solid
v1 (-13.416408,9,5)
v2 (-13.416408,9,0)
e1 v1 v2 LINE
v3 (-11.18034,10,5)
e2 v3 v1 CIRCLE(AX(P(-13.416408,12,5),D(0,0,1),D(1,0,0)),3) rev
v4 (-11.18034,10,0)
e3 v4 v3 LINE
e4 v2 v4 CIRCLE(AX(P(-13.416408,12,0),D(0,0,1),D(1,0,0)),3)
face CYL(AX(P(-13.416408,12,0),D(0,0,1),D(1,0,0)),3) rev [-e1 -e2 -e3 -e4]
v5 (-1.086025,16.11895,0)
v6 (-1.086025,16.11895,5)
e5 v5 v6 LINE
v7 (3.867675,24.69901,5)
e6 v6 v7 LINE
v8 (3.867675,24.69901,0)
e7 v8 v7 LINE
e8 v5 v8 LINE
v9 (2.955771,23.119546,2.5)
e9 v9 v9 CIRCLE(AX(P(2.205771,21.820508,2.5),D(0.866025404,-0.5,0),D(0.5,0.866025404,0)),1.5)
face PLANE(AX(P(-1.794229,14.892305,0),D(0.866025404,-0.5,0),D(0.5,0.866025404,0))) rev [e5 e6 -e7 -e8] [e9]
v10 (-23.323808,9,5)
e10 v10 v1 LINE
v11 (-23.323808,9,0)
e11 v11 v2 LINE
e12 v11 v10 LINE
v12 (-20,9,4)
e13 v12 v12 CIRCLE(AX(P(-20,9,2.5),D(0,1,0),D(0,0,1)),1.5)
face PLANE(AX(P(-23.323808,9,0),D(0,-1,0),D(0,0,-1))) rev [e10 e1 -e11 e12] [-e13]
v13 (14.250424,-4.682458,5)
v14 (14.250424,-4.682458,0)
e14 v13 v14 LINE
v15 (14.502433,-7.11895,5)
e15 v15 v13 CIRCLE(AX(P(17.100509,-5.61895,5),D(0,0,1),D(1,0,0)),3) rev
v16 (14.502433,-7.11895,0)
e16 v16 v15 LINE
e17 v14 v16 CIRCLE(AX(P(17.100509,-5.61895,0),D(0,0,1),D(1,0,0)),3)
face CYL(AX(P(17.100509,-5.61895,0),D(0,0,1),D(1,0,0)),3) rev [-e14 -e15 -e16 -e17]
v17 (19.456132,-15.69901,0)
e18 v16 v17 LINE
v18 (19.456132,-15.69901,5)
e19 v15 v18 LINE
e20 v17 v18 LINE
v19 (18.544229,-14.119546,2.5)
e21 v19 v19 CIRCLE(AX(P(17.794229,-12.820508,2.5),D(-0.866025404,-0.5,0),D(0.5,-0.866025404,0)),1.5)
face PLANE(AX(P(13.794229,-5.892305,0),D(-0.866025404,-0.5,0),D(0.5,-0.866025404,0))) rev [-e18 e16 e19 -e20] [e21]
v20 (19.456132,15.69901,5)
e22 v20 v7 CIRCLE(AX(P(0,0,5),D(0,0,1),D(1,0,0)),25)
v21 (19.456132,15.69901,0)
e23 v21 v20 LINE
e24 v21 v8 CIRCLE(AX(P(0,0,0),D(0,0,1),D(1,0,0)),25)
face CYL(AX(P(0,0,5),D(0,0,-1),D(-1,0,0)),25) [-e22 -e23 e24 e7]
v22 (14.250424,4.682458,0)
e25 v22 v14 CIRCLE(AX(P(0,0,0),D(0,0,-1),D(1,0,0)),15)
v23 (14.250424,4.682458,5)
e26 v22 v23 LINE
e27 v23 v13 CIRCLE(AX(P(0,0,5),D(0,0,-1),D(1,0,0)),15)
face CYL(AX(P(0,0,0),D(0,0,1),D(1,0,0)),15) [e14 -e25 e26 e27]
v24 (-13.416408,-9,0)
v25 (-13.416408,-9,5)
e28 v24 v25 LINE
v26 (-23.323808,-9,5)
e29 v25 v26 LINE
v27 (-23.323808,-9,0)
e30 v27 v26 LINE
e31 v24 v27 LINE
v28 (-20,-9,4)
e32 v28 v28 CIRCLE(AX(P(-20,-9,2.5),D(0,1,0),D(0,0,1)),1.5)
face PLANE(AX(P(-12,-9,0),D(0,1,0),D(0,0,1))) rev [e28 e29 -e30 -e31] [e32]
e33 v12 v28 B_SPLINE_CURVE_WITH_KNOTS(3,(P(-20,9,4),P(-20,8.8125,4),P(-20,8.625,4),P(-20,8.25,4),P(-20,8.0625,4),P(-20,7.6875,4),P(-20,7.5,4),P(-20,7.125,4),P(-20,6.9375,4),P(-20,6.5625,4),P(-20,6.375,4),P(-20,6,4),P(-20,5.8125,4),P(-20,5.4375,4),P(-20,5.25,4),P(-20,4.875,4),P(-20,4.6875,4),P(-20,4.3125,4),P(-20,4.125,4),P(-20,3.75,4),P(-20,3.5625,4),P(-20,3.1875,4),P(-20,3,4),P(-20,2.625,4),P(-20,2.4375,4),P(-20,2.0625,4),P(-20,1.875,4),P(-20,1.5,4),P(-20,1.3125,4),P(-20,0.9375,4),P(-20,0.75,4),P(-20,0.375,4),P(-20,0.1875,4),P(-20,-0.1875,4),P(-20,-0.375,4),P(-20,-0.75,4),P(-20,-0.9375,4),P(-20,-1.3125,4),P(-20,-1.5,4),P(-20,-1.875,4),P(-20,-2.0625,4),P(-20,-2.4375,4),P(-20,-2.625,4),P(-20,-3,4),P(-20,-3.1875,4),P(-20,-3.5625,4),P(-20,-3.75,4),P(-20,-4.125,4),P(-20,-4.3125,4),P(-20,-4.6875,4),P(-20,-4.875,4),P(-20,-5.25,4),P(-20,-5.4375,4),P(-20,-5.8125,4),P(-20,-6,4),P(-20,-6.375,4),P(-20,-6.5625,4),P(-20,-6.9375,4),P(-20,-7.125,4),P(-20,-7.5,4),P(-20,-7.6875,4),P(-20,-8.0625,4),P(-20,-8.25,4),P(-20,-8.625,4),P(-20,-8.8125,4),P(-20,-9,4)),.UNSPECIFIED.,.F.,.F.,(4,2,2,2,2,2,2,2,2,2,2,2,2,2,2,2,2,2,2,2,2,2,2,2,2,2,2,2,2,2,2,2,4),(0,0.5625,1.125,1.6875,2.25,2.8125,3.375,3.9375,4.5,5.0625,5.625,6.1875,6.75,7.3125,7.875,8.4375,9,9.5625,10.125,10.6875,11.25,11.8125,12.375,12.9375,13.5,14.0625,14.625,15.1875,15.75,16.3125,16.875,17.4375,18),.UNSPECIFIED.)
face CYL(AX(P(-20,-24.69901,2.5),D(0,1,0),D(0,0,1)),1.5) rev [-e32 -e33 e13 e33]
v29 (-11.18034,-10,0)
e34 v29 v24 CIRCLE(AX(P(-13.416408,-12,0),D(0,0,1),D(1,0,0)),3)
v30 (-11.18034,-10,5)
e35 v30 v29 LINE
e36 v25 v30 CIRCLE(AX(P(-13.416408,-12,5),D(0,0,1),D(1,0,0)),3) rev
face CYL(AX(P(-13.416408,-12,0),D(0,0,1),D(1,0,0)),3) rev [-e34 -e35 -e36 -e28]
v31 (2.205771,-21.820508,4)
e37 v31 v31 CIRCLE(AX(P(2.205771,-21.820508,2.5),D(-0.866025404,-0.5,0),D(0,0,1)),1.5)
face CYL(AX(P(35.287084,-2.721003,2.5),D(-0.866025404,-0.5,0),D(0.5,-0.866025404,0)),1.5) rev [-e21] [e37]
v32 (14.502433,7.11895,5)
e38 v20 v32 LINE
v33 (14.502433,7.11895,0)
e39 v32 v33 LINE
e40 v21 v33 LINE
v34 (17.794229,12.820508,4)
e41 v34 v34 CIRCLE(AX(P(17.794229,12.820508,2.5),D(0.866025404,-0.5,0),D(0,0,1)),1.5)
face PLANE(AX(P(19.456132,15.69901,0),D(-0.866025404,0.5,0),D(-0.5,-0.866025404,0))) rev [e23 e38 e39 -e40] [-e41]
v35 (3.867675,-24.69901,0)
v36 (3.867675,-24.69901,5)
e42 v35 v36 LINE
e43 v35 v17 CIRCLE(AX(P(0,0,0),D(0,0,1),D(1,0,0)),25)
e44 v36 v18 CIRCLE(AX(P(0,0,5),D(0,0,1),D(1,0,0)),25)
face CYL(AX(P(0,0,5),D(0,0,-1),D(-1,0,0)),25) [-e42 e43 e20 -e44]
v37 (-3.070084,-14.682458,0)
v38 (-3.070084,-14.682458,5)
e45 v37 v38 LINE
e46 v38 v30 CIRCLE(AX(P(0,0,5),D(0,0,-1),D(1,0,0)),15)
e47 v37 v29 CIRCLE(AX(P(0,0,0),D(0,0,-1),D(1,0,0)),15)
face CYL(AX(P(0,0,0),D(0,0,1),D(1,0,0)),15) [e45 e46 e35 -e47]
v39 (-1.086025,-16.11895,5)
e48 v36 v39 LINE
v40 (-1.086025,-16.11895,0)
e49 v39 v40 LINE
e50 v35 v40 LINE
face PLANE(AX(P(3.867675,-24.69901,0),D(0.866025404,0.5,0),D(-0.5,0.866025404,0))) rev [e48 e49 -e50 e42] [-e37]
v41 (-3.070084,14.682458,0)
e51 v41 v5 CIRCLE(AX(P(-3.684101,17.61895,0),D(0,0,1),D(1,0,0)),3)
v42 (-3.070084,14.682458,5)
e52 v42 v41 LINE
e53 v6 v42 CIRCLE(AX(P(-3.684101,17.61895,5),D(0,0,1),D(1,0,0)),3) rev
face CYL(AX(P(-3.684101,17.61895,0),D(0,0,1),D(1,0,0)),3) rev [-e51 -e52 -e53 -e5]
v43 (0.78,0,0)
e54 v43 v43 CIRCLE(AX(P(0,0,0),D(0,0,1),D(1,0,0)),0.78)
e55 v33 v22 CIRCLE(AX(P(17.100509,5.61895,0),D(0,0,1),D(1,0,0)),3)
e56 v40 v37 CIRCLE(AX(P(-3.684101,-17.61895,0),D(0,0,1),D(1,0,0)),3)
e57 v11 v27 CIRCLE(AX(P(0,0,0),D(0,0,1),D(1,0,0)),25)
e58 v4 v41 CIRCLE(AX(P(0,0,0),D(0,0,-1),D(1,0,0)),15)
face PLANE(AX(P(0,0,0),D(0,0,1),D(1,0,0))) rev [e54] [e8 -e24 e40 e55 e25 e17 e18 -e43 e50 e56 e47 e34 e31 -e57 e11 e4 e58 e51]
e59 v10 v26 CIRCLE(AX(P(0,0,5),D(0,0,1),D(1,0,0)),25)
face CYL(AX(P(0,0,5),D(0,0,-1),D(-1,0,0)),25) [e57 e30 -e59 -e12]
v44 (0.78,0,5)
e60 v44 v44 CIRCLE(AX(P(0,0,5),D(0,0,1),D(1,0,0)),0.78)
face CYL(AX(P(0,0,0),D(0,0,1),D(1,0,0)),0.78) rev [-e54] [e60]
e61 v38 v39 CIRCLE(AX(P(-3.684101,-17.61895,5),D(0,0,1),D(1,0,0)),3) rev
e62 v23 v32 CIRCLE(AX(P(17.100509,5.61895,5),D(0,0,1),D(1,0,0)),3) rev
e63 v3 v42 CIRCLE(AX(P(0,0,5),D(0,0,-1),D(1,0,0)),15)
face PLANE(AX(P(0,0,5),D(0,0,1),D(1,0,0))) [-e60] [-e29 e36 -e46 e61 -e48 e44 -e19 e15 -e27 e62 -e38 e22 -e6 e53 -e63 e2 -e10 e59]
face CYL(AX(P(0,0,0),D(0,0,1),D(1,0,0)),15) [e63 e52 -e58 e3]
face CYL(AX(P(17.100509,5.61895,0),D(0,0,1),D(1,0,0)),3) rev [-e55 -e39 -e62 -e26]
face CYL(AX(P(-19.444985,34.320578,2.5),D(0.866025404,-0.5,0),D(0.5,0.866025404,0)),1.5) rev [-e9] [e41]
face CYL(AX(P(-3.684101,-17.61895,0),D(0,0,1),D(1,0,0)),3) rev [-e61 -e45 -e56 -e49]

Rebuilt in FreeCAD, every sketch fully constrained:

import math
import FreeCAD as App
import Part
import Sketcher
Q = App.Units.Quantity


def edges_at(feature, points):
    """Names of the edges that pass closest to the given points."""
    edges = feature.Shape.Edges
    near = lambda p: min(range(len(edges)), key=lambda i: edges[i].distToShape(Part.Vertex(*p))[0])
    return sorted({f"Edge{near(p) + 1}" for p in points})

doc = App.newDocument("Part")
body = doc.addObject("PartDesign::Body", "Body")

# Sketch on XY plane
sketch1 = doc.addObject("Sketcher::SketchObject", "Sketch")
body.addObject(sketch1)
sketch1.AttachmentSupport = (doc.XY_Plane, [""])
sketch1.MapMode = "FlatFace"
sketch1.addGeometry(Part.Circle(App.Vector(0, 0, 0), App.Vector(0, 0, 1), 25), False)
sketch1.addConstraint([
    Sketcher.Constraint("Coincident", 0, 3, -1, 1),
    Sketcher.Constraint("Diameter", 0, 50.0),
])
pad1 = doc.addObject("PartDesign::Pad", "Pad")
body.addObject(pad1)
pad1.Profile = sketch1
pad1.Length = 5

# Sketch on XY plane
sketch2 = doc.addObject("Sketcher::SketchObject", "Sketch001")
body.addObject(sketch2)
sketch2.AttachmentSupport = (doc.XY_Plane, [""])
sketch2.MapMode = "FlatFace"
sketch2.AttachmentOffset = App.Placement(App.Vector(0, 0, 5), App.Rotation())
sketch2.addGeometry([
    Part.LineSegment(App.Vector(19, 16, 0), App.Vector(14, 6, 0)),  # 0
    Part.ArcOfCircle(Part.Circle(App.Vector(0, 0, 0), App.Vector(0, 0, 1), 15), math.radians(-23), math.radians(23)),  # 1
    Part.LineSegment(App.Vector(14, -6, 0), App.Vector(19, -16, 0)),  # 2
    Part.ArcOfCircle(Part.Circle(App.Vector(0, 0, 0), App.Vector(0, 0, 1), 25), math.radians(-39), math.radians(39)),  # 3
    Part.LineSegment(App.Vector(-23, 9, 0), App.Vector(-12, 9, 0)),  # 4
    Part.ArcOfCircle(Part.Circle(App.Vector(0, 0, 0), App.Vector(0, 0, 1), 15), math.radians(97), math.radians(143)),  # 5
    Part.LineSegment(App.Vector(-2, 15, 0), App.Vector(4, 25, 0)),  # 6
    Part.ArcOfCircle(Part.Circle(App.Vector(0, 0, 0), App.Vector(0, 0, 1), 25), math.radians(81), math.radians(159)),  # 7
    Part.LineSegment(App.Vector(4, -25, 0), App.Vector(-2, -15, 0)),  # 8
    Part.ArcOfCircle(Part.Circle(App.Vector(0, 0, 0), App.Vector(0, 0, 1), 15), math.radians(-143), math.radians(-97)),  # 9
    Part.LineSegment(App.Vector(-12, -9, 0), App.Vector(-23, -9, 0)),  # 10
    Part.ArcOfCircle(Part.Circle(App.Vector(0, 0, 0), App.Vector(0, 0, 1), 25), math.radians(-159), math.radians(-81)),  # 11
], False)
sketch2.addConstraint([
    Sketcher.Constraint("Coincident", 0, 2, 1, 2),
    Sketcher.Constraint("Coincident", 1, 1, 2, 1),
    Sketcher.Constraint("Coincident", 2, 2, 3, 1),
    Sketcher.Constraint("Coincident", 3, 2, 0, 1),
    Sketcher.Constraint("Coincident", 4, 2, 5, 2),
    Sketcher.Constraint("Coincident", 5, 1, 6, 1),
    Sketcher.Constraint("Coincident", 6, 2, 7, 1),
    Sketcher.Constraint("Coincident", 7, 2, 4, 1),
    Sketcher.Constraint("Coincident", 8, 2, 9, 2),
    Sketcher.Constraint("Coincident", 9, 1, 10, 1),
    Sketcher.Constraint("Coincident", 10, 2, 11, 1),
    Sketcher.Constraint("Coincident", 11, 2, 8, 1),
    Sketcher.Constraint("Horizontal", 4),
    Sketcher.Constraint("Horizontal", 10),
    Sketcher.Constraint("Coincident", 1, 3, -1, 1),
    Sketcher.Constraint("Coincident", 3, 3, -1, 1),
    Sketcher.Constraint("Coincident", 5, 3, -1, 1),
    Sketcher.Constraint("Coincident", 7, 3, -1, 1),
    Sketcher.Constraint("Coincident", 9, 3, -1, 1),
    Sketcher.Constraint("Coincident", 11, 3, -1, 1),
    Sketcher.Constraint("Equal", 1, 5),
    Sketcher.Constraint("Equal", 3, 7),
    Sketcher.Constraint("Equal", 5, 9),
    Sketcher.Constraint("Equal", 7, 11),
    Sketcher.Constraint("Parallel", 0, 6),
    Sketcher.Constraint("Parallel", 2, 8),
    Sketcher.Constraint("Vertical", 0, 2, 1, 1),
    Sketcher.Constraint("Vertical", 2, 2, 3, 2),
    Sketcher.Constraint("Vertical", 5, 1, 8, 2),
    Sketcher.Constraint("Vertical", 4, 2, 9, 1),
    Sketcher.Constraint("Equal", 2, 6),
    Sketcher.Constraint("Radius", 1, 15.0),
    Sketcher.Constraint("Radius", 3, 25.0),
    Sketcher.Constraint("Angle", 0, Q("-120 deg")),
    Sketcher.Constraint("DistanceX", 4, 2, -1, 1, 12.0),
    Sketcher.Constraint("DistanceY", 3, 2, 6, 2, 9.0),
])
pocket1 = doc.addObject("PartDesign::Pocket", "Pocket")
body.addObject(pocket1)
pocket1.Profile = sketch2
pocket1.Type = "ThroughAll"

# Sketch on XZ plane
sketch3 = doc.addObject("Sketcher::SketchObject", "Sketch002")
body.addObject(sketch3)
sketch3.AttachmentSupport = (doc.XZ_Plane, [""])
sketch3.MapMode = "FlatFace"
sketch3.AttachmentOffset = App.Placement(App.Vector(0, 0, -9), App.Rotation())
sketch3.addGeometry(Part.Circle(App.Vector(-20, 2.5, 0), App.Vector(0, 0, 1), 1.5), False)
sketch3.addConstraint([
    Sketcher.Constraint("Diameter", 0, 3.0),
    Sketcher.Constraint("DistanceX", 0, 3, -1, 1, 20.0),
    Sketcher.Constraint("DistanceY", -1, 1, 0, 3, 2.5),
])
pocket2 = doc.addObject("PartDesign::Pocket", "Pocket001")
body.addObject(pocket2)
pocket2.Profile = sketch3
pocket2.Type = "ThroughAll"
pocket2.Reversed = True
doc.recompute()

polarpattern = doc.addObject("PartDesign::PolarPattern", "PolarPattern")
body.addObject(polarpattern)
polarpattern.Originals = [pocket2]
polarpattern.Axis = (doc.Z_Axis, [""])
polarpattern.Angle = 360
polarpattern.Occurrences = 3
body.Tip = polarpattern

# Sketch on XY plane
sketch4 = doc.addObject("Sketcher::SketchObject", "Sketch003")
body.addObject(sketch4)
sketch4.AttachmentSupport = (doc.XY_Plane, [""])
sketch4.MapMode = "FlatFace"
sketch4.AttachmentOffset = App.Placement(App.Vector(0, 0, 5), App.Rotation())
sketch4.addGeometry(Part.Circle(App.Vector(0, 0, 0), App.Vector(0, 0, 1), 0.8), False)
sketch4.addConstraint([
    Sketcher.Constraint("Coincident", 0, 3, -1, 1),
    Sketcher.Constraint("Diameter", 0, 1.56),
])
pocket3 = doc.addObject("PartDesign::Pocket", "Pocket002")
body.addObject(pocket3)
pocket3.Profile = sketch4
pocket3.Type = "ThroughAll"
doc.recompute()

fillet = doc.addObject("PartDesign::Fillet", "Fillet")
body.addObject(fillet)
fillet.Base = (pocket3, edges_at(pocket3, [
    (-1.794, 14.892, 2.5),
    (-12, 9, 2.5),
    (-12, -9, 2.5),
    (-1.794, -14.892, 2.5),
    (13.794, -5.892, 2.5),
    (13.794, 5.892, 2.5),
]))
fillet.Radius = 3

doc.recompute()
